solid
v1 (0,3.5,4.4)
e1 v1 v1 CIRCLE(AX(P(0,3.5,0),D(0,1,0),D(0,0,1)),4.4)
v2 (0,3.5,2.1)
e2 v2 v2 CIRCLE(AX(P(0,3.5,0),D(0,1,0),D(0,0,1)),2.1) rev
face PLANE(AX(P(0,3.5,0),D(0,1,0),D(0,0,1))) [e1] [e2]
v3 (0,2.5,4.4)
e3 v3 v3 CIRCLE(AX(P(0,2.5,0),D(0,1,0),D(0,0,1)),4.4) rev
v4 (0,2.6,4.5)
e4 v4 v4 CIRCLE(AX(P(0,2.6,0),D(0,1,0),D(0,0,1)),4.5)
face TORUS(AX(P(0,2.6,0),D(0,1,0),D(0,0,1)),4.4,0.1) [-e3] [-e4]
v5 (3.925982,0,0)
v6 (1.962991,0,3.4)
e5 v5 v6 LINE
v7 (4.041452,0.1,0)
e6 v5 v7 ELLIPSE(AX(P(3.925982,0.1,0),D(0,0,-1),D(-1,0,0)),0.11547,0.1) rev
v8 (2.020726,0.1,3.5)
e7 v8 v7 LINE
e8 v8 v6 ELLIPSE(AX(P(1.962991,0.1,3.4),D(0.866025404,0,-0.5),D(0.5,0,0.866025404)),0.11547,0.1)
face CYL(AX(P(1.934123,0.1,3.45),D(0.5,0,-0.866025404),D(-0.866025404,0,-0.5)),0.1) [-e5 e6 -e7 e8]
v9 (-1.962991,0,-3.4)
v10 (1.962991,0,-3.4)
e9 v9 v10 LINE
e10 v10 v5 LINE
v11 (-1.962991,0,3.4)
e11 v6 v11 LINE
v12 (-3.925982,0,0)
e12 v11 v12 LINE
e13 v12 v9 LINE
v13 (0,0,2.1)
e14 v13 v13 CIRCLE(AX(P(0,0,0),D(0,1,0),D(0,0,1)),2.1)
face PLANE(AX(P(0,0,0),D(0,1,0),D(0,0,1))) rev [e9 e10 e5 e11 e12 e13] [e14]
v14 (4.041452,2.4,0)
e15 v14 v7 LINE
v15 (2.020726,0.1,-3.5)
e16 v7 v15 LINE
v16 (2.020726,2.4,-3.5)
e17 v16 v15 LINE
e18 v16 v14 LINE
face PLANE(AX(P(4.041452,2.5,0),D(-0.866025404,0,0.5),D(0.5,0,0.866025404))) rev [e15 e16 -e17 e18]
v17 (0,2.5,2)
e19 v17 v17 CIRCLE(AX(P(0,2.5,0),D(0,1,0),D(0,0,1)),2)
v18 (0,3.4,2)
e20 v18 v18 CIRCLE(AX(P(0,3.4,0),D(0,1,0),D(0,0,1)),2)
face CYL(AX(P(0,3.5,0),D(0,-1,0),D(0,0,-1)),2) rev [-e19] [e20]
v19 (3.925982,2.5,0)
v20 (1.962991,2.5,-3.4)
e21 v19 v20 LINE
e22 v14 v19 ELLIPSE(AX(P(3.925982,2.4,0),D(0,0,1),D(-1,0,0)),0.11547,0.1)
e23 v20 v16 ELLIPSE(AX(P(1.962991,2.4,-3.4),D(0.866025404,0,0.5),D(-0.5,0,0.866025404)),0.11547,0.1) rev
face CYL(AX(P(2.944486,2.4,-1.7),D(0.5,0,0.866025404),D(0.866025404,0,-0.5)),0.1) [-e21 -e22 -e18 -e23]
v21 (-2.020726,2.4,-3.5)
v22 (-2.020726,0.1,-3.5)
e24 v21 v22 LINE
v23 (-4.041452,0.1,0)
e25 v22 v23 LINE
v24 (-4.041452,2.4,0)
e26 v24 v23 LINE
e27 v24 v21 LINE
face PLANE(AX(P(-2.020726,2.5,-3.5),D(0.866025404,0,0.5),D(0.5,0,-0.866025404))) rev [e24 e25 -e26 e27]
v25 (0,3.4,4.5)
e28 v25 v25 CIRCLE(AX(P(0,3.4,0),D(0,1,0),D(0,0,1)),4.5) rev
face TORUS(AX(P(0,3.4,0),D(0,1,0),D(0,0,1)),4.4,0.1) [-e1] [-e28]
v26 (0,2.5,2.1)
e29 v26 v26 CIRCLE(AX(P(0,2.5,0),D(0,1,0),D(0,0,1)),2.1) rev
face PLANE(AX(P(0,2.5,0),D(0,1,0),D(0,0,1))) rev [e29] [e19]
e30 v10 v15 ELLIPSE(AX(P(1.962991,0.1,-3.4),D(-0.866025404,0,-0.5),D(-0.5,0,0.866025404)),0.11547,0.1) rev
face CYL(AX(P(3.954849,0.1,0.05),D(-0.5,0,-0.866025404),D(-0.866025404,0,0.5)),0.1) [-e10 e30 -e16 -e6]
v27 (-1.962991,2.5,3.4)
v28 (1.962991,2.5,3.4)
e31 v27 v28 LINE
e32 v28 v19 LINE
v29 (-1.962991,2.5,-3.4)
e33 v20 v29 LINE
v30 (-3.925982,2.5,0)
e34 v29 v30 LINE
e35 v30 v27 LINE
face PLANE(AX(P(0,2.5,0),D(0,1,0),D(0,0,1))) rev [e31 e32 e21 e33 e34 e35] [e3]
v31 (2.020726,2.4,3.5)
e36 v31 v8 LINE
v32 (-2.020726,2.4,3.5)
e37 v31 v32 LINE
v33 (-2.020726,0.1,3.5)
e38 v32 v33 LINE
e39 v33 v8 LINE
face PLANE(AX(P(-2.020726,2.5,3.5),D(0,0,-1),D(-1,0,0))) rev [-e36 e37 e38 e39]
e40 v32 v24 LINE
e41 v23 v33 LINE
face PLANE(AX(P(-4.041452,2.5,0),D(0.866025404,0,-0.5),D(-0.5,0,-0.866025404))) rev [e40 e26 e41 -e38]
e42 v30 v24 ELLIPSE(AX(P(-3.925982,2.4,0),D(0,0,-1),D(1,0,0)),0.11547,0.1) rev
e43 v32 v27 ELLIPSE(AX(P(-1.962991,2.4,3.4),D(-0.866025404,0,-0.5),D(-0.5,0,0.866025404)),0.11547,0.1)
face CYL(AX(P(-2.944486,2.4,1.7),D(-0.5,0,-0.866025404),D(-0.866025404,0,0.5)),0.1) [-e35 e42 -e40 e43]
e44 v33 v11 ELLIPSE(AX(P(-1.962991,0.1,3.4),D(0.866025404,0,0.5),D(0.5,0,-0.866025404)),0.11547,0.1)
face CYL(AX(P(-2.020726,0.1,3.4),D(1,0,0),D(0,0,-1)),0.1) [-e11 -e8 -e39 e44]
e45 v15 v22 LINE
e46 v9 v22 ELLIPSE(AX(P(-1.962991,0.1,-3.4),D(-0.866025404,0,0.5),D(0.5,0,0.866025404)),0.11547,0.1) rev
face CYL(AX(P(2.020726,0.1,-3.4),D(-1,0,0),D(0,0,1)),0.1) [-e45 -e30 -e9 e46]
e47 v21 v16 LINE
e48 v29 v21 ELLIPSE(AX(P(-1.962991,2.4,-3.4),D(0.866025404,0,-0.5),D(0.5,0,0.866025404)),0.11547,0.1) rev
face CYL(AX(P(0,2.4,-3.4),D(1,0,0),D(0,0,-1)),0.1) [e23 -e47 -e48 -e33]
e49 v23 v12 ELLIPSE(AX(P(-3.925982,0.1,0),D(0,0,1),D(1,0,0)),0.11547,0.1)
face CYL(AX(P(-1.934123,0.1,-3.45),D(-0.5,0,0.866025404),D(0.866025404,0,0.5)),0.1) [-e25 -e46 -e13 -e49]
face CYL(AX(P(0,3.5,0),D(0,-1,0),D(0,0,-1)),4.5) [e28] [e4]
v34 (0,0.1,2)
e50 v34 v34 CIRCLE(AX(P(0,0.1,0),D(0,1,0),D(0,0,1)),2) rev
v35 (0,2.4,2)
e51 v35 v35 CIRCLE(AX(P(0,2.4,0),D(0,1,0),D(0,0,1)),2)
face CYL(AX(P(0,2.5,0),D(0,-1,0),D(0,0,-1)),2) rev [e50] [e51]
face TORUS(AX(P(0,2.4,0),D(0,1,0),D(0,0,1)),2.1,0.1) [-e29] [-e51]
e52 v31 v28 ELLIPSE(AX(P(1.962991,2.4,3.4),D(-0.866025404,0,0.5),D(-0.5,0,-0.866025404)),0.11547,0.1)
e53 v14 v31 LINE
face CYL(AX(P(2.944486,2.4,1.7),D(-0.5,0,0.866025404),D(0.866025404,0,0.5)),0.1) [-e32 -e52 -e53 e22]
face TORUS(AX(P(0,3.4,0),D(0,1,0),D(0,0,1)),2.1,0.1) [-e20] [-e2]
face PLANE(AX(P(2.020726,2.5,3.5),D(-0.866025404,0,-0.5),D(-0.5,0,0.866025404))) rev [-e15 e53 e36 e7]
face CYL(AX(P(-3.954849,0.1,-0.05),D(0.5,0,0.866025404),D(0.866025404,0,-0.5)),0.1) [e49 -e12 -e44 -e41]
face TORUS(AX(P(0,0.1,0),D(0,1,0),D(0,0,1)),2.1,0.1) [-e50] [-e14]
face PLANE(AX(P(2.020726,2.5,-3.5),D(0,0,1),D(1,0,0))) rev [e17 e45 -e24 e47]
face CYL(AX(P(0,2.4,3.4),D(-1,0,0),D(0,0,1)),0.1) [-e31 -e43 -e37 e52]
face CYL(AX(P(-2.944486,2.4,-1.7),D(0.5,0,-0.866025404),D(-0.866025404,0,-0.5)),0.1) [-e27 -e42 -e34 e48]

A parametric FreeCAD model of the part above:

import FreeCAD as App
import Part
import Sketcher
Q = App.Units.Quantity


def edges_at(feature, points):
    """Names of the edges that pass closest to the given points."""
    edges = feature.Shape.Edges
    near = lambda p: min(range(len(edges)), key=lambda i: edges[i].distToShape(Part.Vertex(*p))[0])
    return sorted({f"Edge{near(p) + 1}" for p in points})


def add_polygon(sketch, points):
    """Adds a closed chain of lines whose ends are joined by coincident constraints."""
    first, n = sketch.GeometryCount, len(points)
    for a, b in zip(points, points[1:] + points[:1]):
        sketch.addGeometry(Part.LineSegment(App.Vector(*a, 0), App.Vector(*b, 0)), False)
    for i in range(n):
        sketch.addConstraint(Sketcher.Constraint("Coincident", first + i, 2, first + (i + 1) % n, 1))

doc = App.newDocument("Part")
body = doc.addObject("PartDesign::Body", "Body")

# Sketch on XZ plane
sketch1 = body.newObject("Sketcher::SketchObject", "Sketch")
sketch1.AttachmentSupport = (doc.getObject("XZ_Plane"), [""])
sketch1.MapMode = "FlatFace"
add_polygon(sketch1, [(2, 3.5), (4, 0), (2, -3.5), (-2, -3.5), (-4, 0), (-2, 3.5)])  # lines 0-5
sketch1.addGeometry(Part.Circle(App.Vector(0, 0, 0), App.Vector(0, 0, 1), 2), False)  # 6
sketch1.addConstraint([
    Sketcher.Constraint("Horizontal", 2),
    Sketcher.Constraint("Horizontal", 5),
    Sketcher.Constraint("Coincident", 6, 3, -1, 1),
    Sketcher.Constraint("Symmetric", 0, 2, 3, 2, -1, 1),
    Sketcher.Constraint("Symmetric", 1, 2, 4, 2, -1, 1),
    Sketcher.Constraint("PointOnObject", 0, 2, -1),
    Sketcher.Constraint("Parallel", 0, 3),
    Sketcher.Constraint("Vertical", 2, 2, 4, 2),
    Sketcher.Constraint("Diameter", 6, 4.0),
    Sketcher.Constraint("Angle", 0, Q("-60 deg")),
    Sketcher.Constraint("DistanceY", 2, 2, 4, 2, 7.0),
    Sketcher.Constraint("DistanceX", 2, 2, 2, 1, 4.041452),
])
pad1 = body.newObject("PartDesign::Pad", "Pad")
pad1.Profile = sketch1
pad1.Length = 2.5
pad1.Reversed = True
doc.recompute()

fillet = body.newObject("PartDesign::Fillet", "Fillet")
fillet.Base = (pad1, edges_at(pad1, [
    (3.031, 2.5, -1.75),
    (0, 2.5, -3.5),
    (-3.031, 2.5, -1.75),
    (0, 0, -2),
    (0, 2.5, -2),
    (-3.031, 2.5, 1.75),
    (0, 2.5, 3.5),
    (-3.031, 0, 1.75),
    (-3.031, 0, -1.75),
    (0, 0, -3.5),
    (3.031, 2.5, 1.75),
    (3.031, 0, -1.75),
    (3.031, 0, 1.75),
    (0, 0, 3.5),
]))
fillet.Radius = 0.1

# Sketch on XZ plane
sketch2 = body.newObject("Sketcher::SketchObject", "Sketch001")
sketch2.AttachmentSupport = (doc.getObject("XZ_Plane"), [""])
sketch2.MapMode = "FlatFace"
sketch2.AttachmentOffset = App.Placement(App.Vector(0, 0, -2.5), App.Rotation())
sketch2.addGeometry([
    Part.Circle(App.Vector(0, 0, 0), App.Vector(0, 0, 1), 4.5),
    Part.Circle(App.Vector(0, 0, 0), App.Vector(0, 0, 1), 2),
], False)
sketch2.addConstraint([
    Sketcher.Constraint("Coincident", 0, 3, -1, 1),
    Sketcher.Constraint("Coincident", 1, 3, -1, 1),
    Sketcher.Constraint("Diameter", 0, 9.0),
    Sketcher.Constraint("Diameter", 1, 4.0),
])
pad2 = body.newObject("PartDesign::Pad", "Pad001")
pad2.Profile = sketch2
pad2.Length = 1
pad2.Reversed = True
doc.recompute()

fillet2 = body.newObject("PartDesign::Fillet", "Fillet001")
fillet2.Base = (pad2, edges_at(pad2, [(0, 3.5, -4.5), (0, 2.5, -4.5), (0, 3.5, -2)]))
fillet2.Radius = 0.1

doc.recompute()
